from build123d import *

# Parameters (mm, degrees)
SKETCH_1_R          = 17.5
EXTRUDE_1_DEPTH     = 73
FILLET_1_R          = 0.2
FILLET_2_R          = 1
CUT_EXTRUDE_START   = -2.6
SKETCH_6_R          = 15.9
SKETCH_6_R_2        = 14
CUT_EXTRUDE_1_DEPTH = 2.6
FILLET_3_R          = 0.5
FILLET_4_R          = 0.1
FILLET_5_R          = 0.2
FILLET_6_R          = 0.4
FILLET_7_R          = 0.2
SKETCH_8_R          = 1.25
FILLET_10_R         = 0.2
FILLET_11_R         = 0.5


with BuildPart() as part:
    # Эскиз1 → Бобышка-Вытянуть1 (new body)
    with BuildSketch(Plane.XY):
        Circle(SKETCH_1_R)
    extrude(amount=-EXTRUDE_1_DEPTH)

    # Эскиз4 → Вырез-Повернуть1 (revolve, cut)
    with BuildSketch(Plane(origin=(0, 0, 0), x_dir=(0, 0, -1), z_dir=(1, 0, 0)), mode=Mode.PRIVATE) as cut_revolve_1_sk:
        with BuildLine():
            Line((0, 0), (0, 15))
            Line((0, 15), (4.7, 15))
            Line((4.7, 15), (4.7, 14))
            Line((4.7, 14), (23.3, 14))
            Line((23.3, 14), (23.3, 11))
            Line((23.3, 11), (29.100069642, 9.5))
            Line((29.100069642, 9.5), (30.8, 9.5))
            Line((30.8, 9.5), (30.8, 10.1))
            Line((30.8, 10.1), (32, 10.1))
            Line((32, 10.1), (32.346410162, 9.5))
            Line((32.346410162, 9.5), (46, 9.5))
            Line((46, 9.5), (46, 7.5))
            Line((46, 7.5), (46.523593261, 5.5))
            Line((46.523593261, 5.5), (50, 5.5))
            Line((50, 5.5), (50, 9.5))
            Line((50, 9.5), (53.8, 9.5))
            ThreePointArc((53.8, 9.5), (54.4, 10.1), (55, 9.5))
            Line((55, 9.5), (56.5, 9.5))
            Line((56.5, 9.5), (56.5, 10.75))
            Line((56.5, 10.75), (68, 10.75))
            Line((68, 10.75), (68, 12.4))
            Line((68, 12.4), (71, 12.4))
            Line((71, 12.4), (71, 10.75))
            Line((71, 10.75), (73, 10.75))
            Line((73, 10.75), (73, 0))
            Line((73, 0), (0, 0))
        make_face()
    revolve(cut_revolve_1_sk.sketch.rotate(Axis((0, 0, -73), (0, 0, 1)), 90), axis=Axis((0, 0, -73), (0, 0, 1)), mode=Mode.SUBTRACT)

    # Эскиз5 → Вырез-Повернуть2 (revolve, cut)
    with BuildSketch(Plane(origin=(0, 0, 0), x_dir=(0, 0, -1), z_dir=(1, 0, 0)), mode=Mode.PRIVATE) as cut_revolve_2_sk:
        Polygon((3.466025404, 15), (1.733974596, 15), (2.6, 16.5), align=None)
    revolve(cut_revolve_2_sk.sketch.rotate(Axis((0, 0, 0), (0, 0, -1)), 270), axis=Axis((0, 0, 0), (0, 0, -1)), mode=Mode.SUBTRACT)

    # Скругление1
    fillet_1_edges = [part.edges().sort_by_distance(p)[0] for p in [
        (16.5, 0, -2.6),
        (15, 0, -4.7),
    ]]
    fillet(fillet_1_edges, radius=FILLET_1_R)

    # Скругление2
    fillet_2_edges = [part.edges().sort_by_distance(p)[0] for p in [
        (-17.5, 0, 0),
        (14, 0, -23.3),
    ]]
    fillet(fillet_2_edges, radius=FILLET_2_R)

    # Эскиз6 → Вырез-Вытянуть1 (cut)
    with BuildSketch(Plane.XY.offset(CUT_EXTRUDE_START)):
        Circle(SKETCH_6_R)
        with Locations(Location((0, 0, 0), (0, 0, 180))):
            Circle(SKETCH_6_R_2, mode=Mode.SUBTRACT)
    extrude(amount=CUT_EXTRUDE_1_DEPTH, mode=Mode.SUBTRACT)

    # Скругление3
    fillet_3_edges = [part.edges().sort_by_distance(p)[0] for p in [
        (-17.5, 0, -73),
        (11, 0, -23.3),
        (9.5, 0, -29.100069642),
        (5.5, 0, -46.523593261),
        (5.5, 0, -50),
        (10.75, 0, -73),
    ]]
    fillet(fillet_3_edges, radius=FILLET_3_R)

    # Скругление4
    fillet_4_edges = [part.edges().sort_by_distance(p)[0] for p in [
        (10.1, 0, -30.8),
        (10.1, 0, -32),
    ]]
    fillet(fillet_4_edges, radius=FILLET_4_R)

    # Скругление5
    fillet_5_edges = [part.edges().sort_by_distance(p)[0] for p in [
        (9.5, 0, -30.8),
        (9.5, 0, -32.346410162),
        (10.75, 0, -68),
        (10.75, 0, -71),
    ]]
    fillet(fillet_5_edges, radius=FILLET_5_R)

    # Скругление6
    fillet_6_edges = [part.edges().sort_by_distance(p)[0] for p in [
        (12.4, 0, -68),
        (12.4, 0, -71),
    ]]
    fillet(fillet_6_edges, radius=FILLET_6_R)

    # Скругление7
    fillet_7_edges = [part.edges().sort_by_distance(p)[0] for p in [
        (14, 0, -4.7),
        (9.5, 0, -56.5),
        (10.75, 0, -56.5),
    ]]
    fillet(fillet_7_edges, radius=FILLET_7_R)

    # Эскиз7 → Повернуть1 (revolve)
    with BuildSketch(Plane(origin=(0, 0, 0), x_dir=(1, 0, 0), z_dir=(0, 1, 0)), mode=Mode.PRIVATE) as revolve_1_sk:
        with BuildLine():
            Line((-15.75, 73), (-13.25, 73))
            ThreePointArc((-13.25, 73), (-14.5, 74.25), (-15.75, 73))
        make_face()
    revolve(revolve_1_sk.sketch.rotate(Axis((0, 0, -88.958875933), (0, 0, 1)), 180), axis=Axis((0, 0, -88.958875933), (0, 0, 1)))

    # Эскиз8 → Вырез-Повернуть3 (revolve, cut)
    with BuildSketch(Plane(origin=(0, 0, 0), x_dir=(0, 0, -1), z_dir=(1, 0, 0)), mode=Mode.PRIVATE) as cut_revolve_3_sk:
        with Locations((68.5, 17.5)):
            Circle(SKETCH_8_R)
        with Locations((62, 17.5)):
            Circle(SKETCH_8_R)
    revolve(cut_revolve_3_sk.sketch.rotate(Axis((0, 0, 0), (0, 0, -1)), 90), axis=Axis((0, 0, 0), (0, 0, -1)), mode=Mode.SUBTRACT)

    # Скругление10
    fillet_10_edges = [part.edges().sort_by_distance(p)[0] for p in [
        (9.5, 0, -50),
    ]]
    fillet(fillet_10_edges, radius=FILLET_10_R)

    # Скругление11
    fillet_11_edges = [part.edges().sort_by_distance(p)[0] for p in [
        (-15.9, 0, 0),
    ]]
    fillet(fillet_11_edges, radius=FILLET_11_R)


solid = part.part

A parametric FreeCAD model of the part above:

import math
import FreeCAD as App
import Part
import Sketcher

V = App.Vector
Q = App.Units.Quantity


def edges_at(feature, points):
    """Names of the edges that pass closest to the given points."""
    edges = feature.Shape.Edges
    near = lambda p: min(range(len(edges)), key=lambda i: edges[i].distToShape(Part.Vertex(*p))[0])
    return sorted({f"Edge{near(p) + 1}" for p in points})

doc = App.newDocument("Part")
body = doc.addObject("PartDesign::Body", "Body")

# Sketch on XY plane
sketch1 = body.newObject("Sketcher::SketchObject", "Sketch")
sketch1.AttachmentSupport = (doc.getObject("XY_Plane"), [""])
sketch1.MapMode = "FlatFace"
sketch1.addGeometry(Part.Circle(V(0, 0, 0), V(0, 0, 1), 18), False)
sketch1.addConstraint(Sketcher.Constraint("Coincident", 0, 3, -1, 1))
sketch1.addConstraint(Sketcher.Constraint("Diameter", 0, 35.0))
pad1 = body.newObject("PartDesign::Pad", "Pad")
pad1.Profile = sketch1
pad1.Length = 73
pad1.Reversed = True

# Sketch on YZ plane
sketch2 = body.newObject("Sketcher::SketchObject", "Sketch001")
sketch2.AttachmentSupport = (doc.getObject("YZ_Plane"), [""])
sketch2.MapMode = "FlatFace"
sketch2.addGeometry(Part.LineSegment(V(15, 0, 0), V(0, 0, 0)), False)
sketch2.addGeometry(Part.LineSegment(V(0, 0, 0), V(0, -73, 0)), False)
sketch2.addGeometry(Part.LineSegment(V(0, -73, 0), V(10.8, -73, 0)), False)
sketch2.addGeometry(Part.LineSegment(V(10.8, -73, 0), V(10.8, -71, 0)), False)
sketch2.addGeometry(Part.LineSegment(V(10.8, -71, 0), V(12.4, -71, 0)), False)
sketch2.addGeometry(Part.LineSegment(V(12.4, -71, 0), V(12.4, -68, 0)), False)
sketch2.addGeometry(Part.LineSegment(V(12.4, -68, 0), V(10.8, -68, 0)), False)
sketch2.addGeometry(Part.LineSegment(V(10.8, -68, 0), V(10.8, -56.5, 0)), False)
sketch2.addGeometry(Part.LineSegment(V(10.8, -56.5, 0), V(9.5, -56.5, 0)), False)
sketch2.addGeometry(Part.LineSegment(V(9.5, -56.5, 0), V(9.5, -55, 0)), False)
sketch2.addGeometry(Part.ArcOfCircle(Part.Circle(V(9.5, -54.4, 0), V(0, 0, 1), 0.6), math.radians(-90), math.radians(90)), False)
sketch2.addGeometry(Part.LineSegment(V(9.5, -53.8, 0), V(9.5, -50, 0)), False)
sketch2.addGeometry(Part.LineSegment(V(9.5, -50, 0), V(5.5, -50, 0)), False)
sketch2.addGeometry(Part.LineSegment(V(5.5, -50, 0), V(5.5, -46.5, 0)), False)
sketch2.addGeometry(Part.LineSegment(V(5.5, -46.5, 0), V(7.5, -46, 0)), False)
sketch2.addGeometry(Part.LineSegment(V(7.5, -46, 0), V(9.5, -46, 0)), False)
sketch2.addGeometry(Part.LineSegment(V(9.5, -46, 0), V(9.5, -32.3, 0)), False)
sketch2.addGeometry(Part.LineSegment(V(9.5, -32.3, 0), V(10.1, -32, 0)), False)
sketch2.addGeometry(Part.LineSegment(V(10.1, -32, 0), V(10.1, -30.8, 0)), False)
sketch2.addGeometry(Part.LineSegment(V(10.1, -30.8, 0), V(9.5, -30.8, 0)), False)
sketch2.addGeometry(Part.LineSegment(V(9.5, -30.8, 0), V(9.5, -29.1, 0)), False)
sketch2.addGeometry(Part.LineSegment(V(9.5, -29.1, 0), V(11, -23.3, 0)), False)
sketch2.addGeometry(Part.LineSegment(V(11, -23.3, 0), V(14, -23.3, 0)), False)
sketch2.addGeometry(Part.LineSegment(V(14, -23.3, 0), V(14, -4.7, 0)), False)
sketch2.addGeometry(Part.LineSegment(V(14, -4.7, 0), V(15, -4.7, 0)), False)
sketch2.addGeometry(Part.LineSegment(V(15, -4.7, 0), V(15, 0, 0)), False)
sketch2.addConstraint(Sketcher.Constraint("Coincident", 0, 2, 1, 1))
sketch2.addConstraint(Sketcher.Constraint("Coincident", 1, 2, 2, 1))
sketch2.addConstraint(Sketcher.Constraint("Coincident", 2, 2, 3, 1))
sketch2.addConstraint(Sketcher.Constraint("Coincident", 3, 2, 4, 1))
sketch2.addConstraint(Sketcher.Constraint("Coincident", 4, 2, 5, 1))
sketch2.addConstraint(Sketcher.Constraint("Coincident", 5, 2, 6, 1))
sketch2.addConstraint(Sketcher.Constraint("Coincident", 6, 2, 7, 1))
sketch2.addConstraint(Sketcher.Constraint("Coincident", 7, 2, 8, 1))
sketch2.addConstraint(Sketcher.Constraint("Coincident", 8, 2, 9, 1))
sketch2.addConstraint(Sketcher.Constraint("Coincident", 9, 2, 10, 1))
sketch2.addConstraint(Sketcher.Constraint("Coincident", 10, 2, 11, 1))
sketch2.addConstraint(Sketcher.Constraint("Coincident", 11, 2, 12, 1))
sketch2.addConstraint(Sketcher.Constraint("Coincident", 12, 2, 13, 1))
sketch2.addConstraint(Sketcher.Constraint("Coincident", 13, 2, 14, 1))
sketch2.addConstraint(Sketcher.Constraint("Coincident", 14, 2, 15, 1))
sketch2.addConstraint(Sketcher.Constraint("Coincident", 15, 2, 16, 1))
sketch2.addConstraint(Sketcher.Constraint("Coincident", 16, 2, 17, 1))
sketch2.addConstraint(Sketcher.Constraint("Coincident", 17, 2, 18, 1))
sketch2.addConstraint(Sketcher.Constraint("Coincident", 18, 2, 19, 1))
sketch2.addConstraint(Sketcher.Constraint("Coincident", 19, 2, 20, 1))
sketch2.addConstraint(Sketcher.Constraint("Coincident", 20, 2, 21, 1))
sketch2.addConstraint(Sketcher.Constraint("Coincident", 21, 2, 22, 1))
sketch2.addConstraint(Sketcher.Constraint("Coincident", 22, 2, 23, 1))
sketch2.addConstraint(Sketcher.Constraint("Coincident", 23, 2, 24, 1))
sketch2.addConstraint(Sketcher.Constraint("Coincident", 24, 2, 25, 1))
sketch2.addConstraint(Sketcher.Constraint("Coincident", 25, 2, 0, 1))
sketch2.addConstraint(Sketcher.Constraint("Horizontal", 0))
sketch2.addConstraint(Sketcher.Constraint("Vertical", 1))
sketch2.addConstraint(Sketcher.Constraint("Horizontal", 2))
sketch2.addConstraint(Sketcher.Constraint("Vertical", 3))
sketch2.addConstraint(Sketcher.Constraint("Horizontal", 4))
sketch2.addConstraint(Sketcher.Constraint("Vertical", 5))
sketch2.addConstraint(Sketcher.Constraint("Horizontal", 6))
sketch2.addConstraint(Sketcher.Constraint("Vertical", 7))
sketch2.addConstraint(Sketcher.Constraint("Horizontal", 8))
sketch2.addConstraint(Sketcher.Constraint("Vertical", 9))
sketch2.addConstraint(Sketcher.Constraint("Vertical", 11))
sketch2.addConstraint(Sketcher.Constraint("Horizontal", 12))
sketch2.addConstraint(Sketcher.Constraint("Vertical", 13))
sketch2.addConstraint(Sketcher.Constraint("Horizontal", 15))
sketch2.addConstraint(Sketcher.Constraint("Vertical", 16))
sketch2.addConstraint(Sketcher.Constraint("Vertical", 18))
sketch2.addConstraint(Sketcher.Constraint("Horizontal", 19))
sketch2.addConstraint(Sketcher.Constraint("Vertical", 20))
sketch2.addConstraint(Sketcher.Constraint("Horizontal", 22))
sketch2.addConstraint(Sketcher.Constraint("Vertical", 23))
sketch2.addConstraint(Sketcher.Constraint("Horizontal", 24))
sketch2.addConstraint(Sketcher.Constraint("Vertical", 25))
sketch2.addConstraint(Sketcher.Constraint("Coincident", 0, 2, -1, 1))
sketch2.addConstraint(Sketcher.Constraint("Vertical", 3, 2, 6, 2))
sketch2.addConstraint(Sketcher.Constraint("Vertical", 10, 3, 8, 2))
sketch2.addConstraint(Sketcher.Constraint("Vertical", 9, 2, 10, 2))
sketch2.addConstraint(Sketcher.Constraint("Vertical", 11, 2, 15, 2))
sketch2.addConstraint(Sketcher.Constraint("Vertical", 16, 2, 19, 2))
sketch2.addConstraint(Sketcher.Constraint("Equal", 15, 3))
sketch2.addConstraint(Sketcher.Constraint("Equal", 22, 5))
sketch2.addConstraint(Sketcher.Constraint("Radius", 10, 0.6))
sketch2.addConstraint(Sketcher.Constraint("DistanceX", 0, 2, 0, 1, 15.0))
sketch2.addConstraint(Sketcher.Constraint("DistanceX", 12, 2, 12, 1, 4.0))
sketch2.addConstraint(Sketcher.Constraint("DistanceX", 15, 1, 15, 2, 2.0))
sketch2.addConstraint(Sketcher.Constraint("DistanceX", 22, 1, 22, 2, 3.0))
sketch2.addConstraint(Sketcher.Constraint("DistanceX", 24, 1, 24, 2, 1.0))
sketch2.addConstraint(Sketcher.Constraint("DistanceY", 1, 2, 1, 1, 73.0))
sketch2.addConstraint(Sketcher.Constraint("Angle", 17, Q("30 deg")))
sketch2.addConstraint(Sketcher.Constraint("DistanceX", 19, 2, 19, 1, 0.6))
sketch2.addConstraint(Sketcher.Constraint("DistanceY", 7, 1, 7, 2, 11.5))
sketch2.addConstraint(Sketcher.Constraint("DistanceY", 9, 1, 9, 2, 1.5))
sketch2.addConstraint(Sketcher.Constraint("DistanceY", 11, 1, 11, 2, 3.8))
sketch2.addConstraint(Sketcher.Constraint("DistanceY", 18, 1, 18, 2, 1.2))
sketch2.addConstraint(Sketcher.Constraint("DistanceY", 23, 1, 23, 2, 18.6))
sketch2.addConstraint(Sketcher.Constraint("DistanceY", 25, 1, 25, 2, 4.7))
sketch2.addConstraint(Sketcher.Constraint("DistanceY", 14, 2, -1, 1, 46.0))
sketch2.addConstraint(Sketcher.Constraint("DistanceY", 17, 2, -1, 1, 32.0))
sketch2.addConstraint(Sketcher.Constraint("Angle", 21, Q("75.5 deg")))
sketch2.addConstraint(Sketcher.Constraint("DistanceX", 2, 1, 2, 2, 10.75))
sketch2.addConstraint(Sketcher.Constraint("DistanceX", 4, 1, 4, 2, 1.65))
sketch2.addConstraint(Sketcher.Constraint("DistanceX", 8, 2, 8, 1, 1.25))
sketch2.addConstraint(Sketcher.Constraint("Distance", 14, 2.067402))
groove = body.newObject("PartDesign::Groove", "Groove")
groove.Profile = sketch2
groove.ReferenceAxis = (sketch2, ["V_Axis"])
groove.Angle = 360

# Sketch on YZ plane
sketch3 = body.newObject("Sketcher::SketchObject", "Sketch002")
sketch3.AttachmentSupport = (doc.getObject("YZ_Plane"), [""])
sketch3.MapMode = "FlatFace"
sketch3.addGeometry(Part.LineSegment(V(15, -1.7, 0), V(15, -3.5, 0)), False)
sketch3.addGeometry(Part.LineSegment(V(15, -3.5, 0), V(16.5, -2.6, 0)), False)
sketch3.addGeometry(Part.LineSegment(V(16.5, -2.6, 0), V(15, -1.7, 0)), False)
sketch3.addConstraint(Sketcher.Constraint("Coincident", 0, 2, 1, 1))
sketch3.addConstraint(Sketcher.Constraint("Coincident", 1, 2, 2, 1))
sketch3.addConstraint(Sketcher.Constraint("Coincident", 2, 2, 0, 1))
sketch3.addConstraint(Sketcher.Constraint("Vertical", 0))
sketch3.addConstraint(Sketcher.Constraint("Equal", 1, 2))
sketch3.addConstraint(Sketcher.Constraint("Angle", 1, Q("30 deg")))
sketch3.addConstraint(Sketcher.Constraint("DistanceX", -1, 1, 0, 2, 15.0))
sketch3.addConstraint(Sketcher.Constraint("DistanceX", -1, 1, 1, 2, 16.5))
sketch3.addConstraint(Sketcher.Constraint("DistanceY", 1, 2, -1, 1, 2.6))
groove2 = body.newObject("PartDesign::Groove", "Groove001")
groove2.Profile = sketch3
groove2.ReferenceAxis = (sketch3, ["V_Axis"])
groove2.Angle = 360
doc.recompute()

fillet = body.newObject("PartDesign::Fillet", "Fillet")
fillet.Base = (groove2, edges_at(groove2, [(16.5, 0, -2.6), (15, 0, -4.7)]))
fillet.Radius = 0.2
doc.recompute()

fillet2 = body.newObject("PartDesign::Fillet", "Fillet001")
fillet2.Base = (fillet, edges_at(fillet, [(-17.5, 0, 0), (14, 0, -23.3)]))
fillet2.Radius = 1

# Sketch on XY plane
sketch4 = body.newObject("Sketcher::SketchObject", "Sketch003")
sketch4.AttachmentSupport = (doc.getObject("XY_Plane"), [""])
sketch4.MapMode = "FlatFace"
sketch4.AttachmentOffset = App.Placement(V(0, 0, -2.6), App.Rotation())
sketch4.addGeometry(Part.Circle(V(0, 0, 0), V(0, 0, 1), 16), False)
sketch4.addGeometry(Part.Circle(V(0, 0, 0), V(0, 0, 1), 14), False)
sketch4.addConstraint(Sketcher.Constraint("Coincident", 0, 3, -1, 1))
sketch4.addConstraint(Sketcher.Constraint("Coincident", 1, 3, -1, 1))
sketch4.addConstraint(Sketcher.Constraint("Diameter", 1, 28.0))
sketch4.addConstraint(Sketcher.Constraint("Diameter", 0, 31.8))
pocket1 = body.newObject("PartDesign::Pocket", "Pocket")
pocket1.Profile = sketch4
pocket1.Length = 2.6
pocket1.Reversed = True
doc.recompute()

fillet3 = body.newObject("PartDesign::Fillet", "Fillet002")
fillet3.Base = (pocket1, edges_at(pocket1, [
    (-17.5, 0, -73),
    (11, 0, -23.3),
    (9.5, 0, -29.1),
    (5.5, 0, -46.524),
    (5.5, 0, -50),
    (10.75, 0, -73),
]))
fillet3.Radius = 0.5
doc.recompute()

fillet4 = body.newObject("PartDesign::Fillet", "Fillet003")
fillet4.Base = (fillet3, edges_at(fillet3, [(10.1, 0, -30.8), (10.1, 0, -32)]))
fillet4.Radius = 0.1
doc.recompute()

fillet5 = body.newObject("PartDesign::Fillet", "Fillet004")
fillet5.Base = (fillet4, edges_at(fillet4, [
    (9.5, 0, -30.8),
    (9.5, 0, -32.346),
    (10.75, 0, -68),
    (10.75, 0, -71),
]))
fillet5.Radius = 0.2
doc.recompute()

fillet6 = body.newObject("PartDesign::Fillet", "Fillet005")
fillet6.Base = (fillet5, edges_at(fillet5, [(12.4, 0, -68), (12.4, 0, -71)]))
fillet6.Radius = 0.4
doc.recompute()

fillet7 = body.newObject("PartDesign::Fillet", "Fillet006")
fillet7.Base = (fillet6, edges_at(fillet6, [(14, 0, -4.7), (9.5, 0, -56.5), (10.75, 0, -56.5)]))
fillet7.Radius = 0.2

# Sketch on XZ plane
sketch5 = body.newObject("Sketcher::SketchObject", "Sketch004")
sketch5.AttachmentSupport = (doc.getObject("XZ_Plane"), [""])
sketch5.MapMode = "FlatFace"
sketch5.addGeometry(Part.LineSegment(V(-15.8, -73, 0), V(-13.2, -73, 0)), False)
sketch5.addGeometry(Part.ArcOfCircle(Part.Circle(V(-14.5, -73, 0), V(0, 0, 1), 1.2), math.radians(180), math.radians(360)), False)
sketch5.addConstraint(Sketcher.Constraint("Coincident", 0, 1, 1, 1))
sketch5.addConstraint(Sketcher.Constraint("Coincident", 1, 2, 0, 2))
sketch5.addConstraint(Sketcher.Constraint("Horizontal", 0))
sketch5.addConstraint(Sketcher.Constraint("Horizontal", 1, 3, 0, 1))
sketch5.addConstraint(Sketcher.Constraint("Radius", 1, 1.25))
sketch5.addConstraint(Sketcher.Constraint("DistanceY", 1, 3, -1, 1, 73.0))
sketch5.addConstraint(Sketcher.Constraint("DistanceX", 1, 3, -1, 1, 14.5))
revolution = body.newObject("PartDesign::Revolution", "Revolution")
revolution.Profile = sketch5
revolution.ReferenceAxis = (sketch5, ["V_Axis"])
revolution.Angle = 360

# Sketch on YZ plane
sketch6 = body.newObject("Sketcher::SketchObject", "Sketch005")
sketch6.AttachmentSupport = (doc.getObject("YZ_Plane"), [""])
sketch6.MapMode = "FlatFace"
sketch6.addGeometry(Part.Circle(V(17.5, -68.5, 0), V(0, 0, 1), 1.2), False)
sketch6.addGeometry(Part.Circle(V(17.5, -62, 0), V(0, 0, 1), 1.2), False)
sketch6.addConstraint(Sketcher.Constraint("Equal", 0, 1))
sketch6.addConstraint(Sketcher.Constraint("Vertical", 0, 3, 1, 3))
sketch6.addConstraint(Sketcher.Constraint("Diameter", 0, 2.5))
sketch6.addConstraint(Sketcher.Constraint("DistanceY", 1, 3, -1, 1, 62.0))
sketch6.addConstraint(Sketcher.Constraint("DistanceX", -1, 1, 0, 3, 17.5))
sketch6.addConstraint(Sketcher.Constraint("DistanceY", 0, 3, -1, 1, 68.5))
groove3 = body.newObject("PartDesign::Groove", "Groove002")
groove3.Profile = sketch6
groove3.ReferenceAxis = (sketch6, ["V_Axis"])
groove3.Angle = 360
doc.recompute()

fillet8 = body.newObject("PartDesign::Fillet", "Fillet007")
fillet8.Base = (groove3, edges_at(groove3, [(9.5, 0, -50)]))
fillet8.Radius = 0.2
doc.recompute()

fillet9 = body.newObject("PartDesign::Fillet", "Fillet008")
fillet9.Base = (fillet8, edges_at(fillet8, [(-15.9, 0, 0)]))
fillet9.Radius = 0.5

doc.recompute()
